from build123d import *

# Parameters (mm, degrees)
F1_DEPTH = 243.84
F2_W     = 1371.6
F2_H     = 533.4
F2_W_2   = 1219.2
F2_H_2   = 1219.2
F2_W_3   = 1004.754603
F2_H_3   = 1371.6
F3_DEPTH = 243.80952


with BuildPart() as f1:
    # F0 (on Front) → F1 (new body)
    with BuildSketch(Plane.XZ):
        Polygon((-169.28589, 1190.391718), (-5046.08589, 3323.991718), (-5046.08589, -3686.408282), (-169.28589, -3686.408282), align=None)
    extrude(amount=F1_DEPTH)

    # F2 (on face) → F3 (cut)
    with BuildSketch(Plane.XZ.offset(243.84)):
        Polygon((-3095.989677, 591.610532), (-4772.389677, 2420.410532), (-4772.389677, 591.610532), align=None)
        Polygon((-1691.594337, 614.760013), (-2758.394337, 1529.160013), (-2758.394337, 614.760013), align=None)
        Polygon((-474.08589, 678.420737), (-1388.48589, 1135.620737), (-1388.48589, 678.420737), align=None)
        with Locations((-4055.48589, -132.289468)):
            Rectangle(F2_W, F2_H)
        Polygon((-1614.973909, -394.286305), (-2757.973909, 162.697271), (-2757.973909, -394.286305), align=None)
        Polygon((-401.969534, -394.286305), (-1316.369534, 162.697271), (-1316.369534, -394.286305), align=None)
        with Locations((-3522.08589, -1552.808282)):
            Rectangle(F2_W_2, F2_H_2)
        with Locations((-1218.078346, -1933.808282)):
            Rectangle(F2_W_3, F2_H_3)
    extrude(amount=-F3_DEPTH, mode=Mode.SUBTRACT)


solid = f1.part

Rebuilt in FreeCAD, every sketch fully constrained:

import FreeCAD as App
import Part
import Sketcher
from FreeCAD import Vector
Q = App.Units.Quantity


def add_polygon(sketch, points):
    """Adds a closed chain of lines whose ends are joined by coincident constraints."""
    first, n = sketch.GeometryCount, len(points)
    for a, b in zip(points, points[1:] + points[:1]):
        sketch.addGeometry(Part.LineSegment(App.Vector(*a, 0), App.Vector(*b, 0)), False)
    for i in range(n):
        sketch.addConstraint(Sketcher.Constraint("Coincident", first + i, 2, first + (i + 1) % n, 1))

doc = App.newDocument("Part")
body = doc.addObject("PartDesign::Body", "Body")

# Sketch on XZ plane
sketch1 = doc.addObject("Sketcher::SketchObject", "Sketch")
body.addObject(sketch1)
sketch1.AttachmentSupport = (doc.XZ_Plane, [""])
sketch1.MapMode = "FlatFace"
add_polygon(sketch1, [(-169, 1190), (-5046, 3324), (-5046, -3686), (-169, -3686)])  # lines 0-3
sketch1.addConstraint([
    Sketcher.Constraint("Vertical", 1),
    Sketcher.Constraint("Horizontal", 2),
    Sketcher.Constraint("Vertical", 3),
    Sketcher.Constraint("Equal", 2, 3),
    Sketcher.Constraint("DistanceX", 2, 1, 2, 2, Q("192 in")),
    Sketcher.Constraint("DistanceY", 1, 2, 1, 1, Q("276 in")),
    Sketcher.Constraint("DistanceX", 0, 2, -1, 1, 5046.08589),
    Sketcher.Constraint("DistanceY", -1, 1, 0, 2, 3323.991718),
])
pad1 = doc.addObject("PartDesign::Pad", "Pad")
body.addObject(pad1)
pad1.Profile = sketch1
pad1.Length = Q("9.6 in")

# Sketch on XZ plane
sketch2 = doc.addObject("Sketcher::SketchObject", "Sketch001")
body.addObject(sketch2)
sketch2.AttachmentSupport = (doc.XZ_Plane, [""])
sketch2.MapMode = "FlatFace"
sketch2.AttachmentOffset = App.Placement(Vector(0, 0, 9.6 * 25.4), App.Rotation())
add_polygon(sketch2, [(-3096, 592), (-4772, 2420), (-4772, 592)])  # lines 0-2
add_polygon(sketch2, [(-1692, 615), (-2758, 1529), (-2758, 615)])  # lines 3-5
add_polygon(sketch2, [(-474, 678), (-1388, 1136), (-1388, 678)])  # lines 6-8
add_polygon(sketch2, [(-4741, 134), (-4741, -399), (-3370, -399), (-3370, 134)])  # lines 9-12
add_polygon(sketch2, [(-1615, -394), (-2758, 163), (-2758, -394)])  # lines 13-15
add_polygon(sketch2, [(-402, -394), (-1316, 163), (-1316, -394)])  # lines 16-18
add_polygon(sketch2, [(-4132, -943), (-4132, -2162), (-2912, -2162), (-2912, -943)])  # lines 19-22
add_polygon(sketch2, [(-1720, -1248), (-1720, -2620), (-716, -2620), (-716, -1248)])  # lines 23-26
sketch2.addConstraint([
    Sketcher.Constraint("Vertical", 1),
    Sketcher.Constraint("Horizontal", 2),
    Sketcher.Constraint("Vertical", 4),
    Sketcher.Constraint("Horizontal", 5),
    Sketcher.Constraint("Vertical", 7),
    Sketcher.Constraint("Horizontal", 8),
    Sketcher.Constraint("Vertical", 9),
    Sketcher.Constraint("Horizontal", 10),
    Sketcher.Constraint("Vertical", 11),
    Sketcher.Constraint("Horizontal", 12),
    Sketcher.Constraint("Vertical", 14),
    Sketcher.Constraint("Horizontal", 15),
    Sketcher.Constraint("Vertical", 17),
    Sketcher.Constraint("Horizontal", 18),
    Sketcher.Constraint("Vertical", 19),
    Sketcher.Constraint("Horizontal", 20),
    Sketcher.Constraint("Vertical", 21),
    Sketcher.Constraint("Horizontal", 22),
    Sketcher.Constraint("Vertical", 23),
    Sketcher.Constraint("Horizontal", 24),
    Sketcher.Constraint("Vertical", 25),
    Sketcher.Constraint("Horizontal", 26),
    Sketcher.Constraint("Horizontal", 13, 2, 16, 2),
    Sketcher.Constraint("Horizontal", 15, 2, 17, 2),
    Sketcher.Constraint("Equal", 8, 18),
    Sketcher.Constraint("Equal", 18, 4),
    Sketcher.Constraint("Equal", 22, 19),
    Sketcher.Constraint("Equal", 12, 23),
    Sketcher.Constraint("DistanceX", 2, 1, 2, 2, Q("66 in")),
    Sketcher.Constraint("DistanceX", 5, 1, 5, 2, Q("42 in")),
    Sketcher.Constraint("DistanceX", 8, 1, 8, 2, Q("36 in")),
    Sketcher.Constraint("DistanceX", 10, 1, 10, 2, Q("54 in")),
    Sketcher.Constraint("DistanceX", 15, 1, 15, 2, Q("45 in")),
    Sketcher.Constraint("DistanceX", 20, 1, 20, 2, Q("48 in")),
    Sketcher.Constraint("DistanceY", 1, 2, 1, 1, Q("72 in")),
    Sketcher.Constraint("DistanceY", 7, 2, 7, 1, Q("18 in")),
    Sketcher.Constraint("DistanceY", 9, 2, 9, 1, Q("21 in")),
    Sketcher.Constraint("DistanceY", 9, 2, 1, 2, Q("39 in")),
    Sketcher.Constraint("DistanceX", 9, 2, 19, 2, Q("24 in")),
    Sketcher.Constraint("DistanceY", 23, 2, 20, 2, Q("18 in")),
    Sketcher.Constraint("Distance", 16, Q("42.1528001 in")),
    Sketcher.Constraint("DistanceX", 24, 1, 24, 2, 1004.754603),
    Sketcher.Constraint("DistanceY", -1, 1, 0, 2, 2420.410532),
    Sketcher.Constraint("DistanceX", 6, 2, -1, 1, 1388.48589),
    Sketcher.Constraint("DistanceX", 9, 2, -1, 1, 4741.28589),
    Sketcher.Constraint("DistanceX", 13, 2, -1, 1, 2757.973909),
    Sketcher.Constraint("DistanceY", -1, 1, 13, 2, 162.697271),
    Sketcher.Constraint("DistanceY", 19, 2, -1, 1, 2162.408282),
    Sketcher.Constraint("DistanceX", 2, 2, 3, 2, 337.59534),
    Sketcher.Constraint("DistanceY", 2, 2, 3, 2, 937.549481),
    Sketcher.Constraint("DistanceX", 4, 2, 13, 2, 0.420428),
    Sketcher.Constraint("DistanceY", 15, 2, 7, 2, 1072.707042),
    Sketcher.Constraint("DistanceX", 23, 2, 15, 2, 105.481738),
    Sketcher.Constraint("DistanceX", 24, 2, 18, 2, 313.73151),
])
pocket1 = doc.addObject("PartDesign::Pocket", "Pocket")
body.addObject(pocket1)
pocket1.Profile = sketch2
pocket1.Length = Q("9.5988 in")

doc.recompute()
